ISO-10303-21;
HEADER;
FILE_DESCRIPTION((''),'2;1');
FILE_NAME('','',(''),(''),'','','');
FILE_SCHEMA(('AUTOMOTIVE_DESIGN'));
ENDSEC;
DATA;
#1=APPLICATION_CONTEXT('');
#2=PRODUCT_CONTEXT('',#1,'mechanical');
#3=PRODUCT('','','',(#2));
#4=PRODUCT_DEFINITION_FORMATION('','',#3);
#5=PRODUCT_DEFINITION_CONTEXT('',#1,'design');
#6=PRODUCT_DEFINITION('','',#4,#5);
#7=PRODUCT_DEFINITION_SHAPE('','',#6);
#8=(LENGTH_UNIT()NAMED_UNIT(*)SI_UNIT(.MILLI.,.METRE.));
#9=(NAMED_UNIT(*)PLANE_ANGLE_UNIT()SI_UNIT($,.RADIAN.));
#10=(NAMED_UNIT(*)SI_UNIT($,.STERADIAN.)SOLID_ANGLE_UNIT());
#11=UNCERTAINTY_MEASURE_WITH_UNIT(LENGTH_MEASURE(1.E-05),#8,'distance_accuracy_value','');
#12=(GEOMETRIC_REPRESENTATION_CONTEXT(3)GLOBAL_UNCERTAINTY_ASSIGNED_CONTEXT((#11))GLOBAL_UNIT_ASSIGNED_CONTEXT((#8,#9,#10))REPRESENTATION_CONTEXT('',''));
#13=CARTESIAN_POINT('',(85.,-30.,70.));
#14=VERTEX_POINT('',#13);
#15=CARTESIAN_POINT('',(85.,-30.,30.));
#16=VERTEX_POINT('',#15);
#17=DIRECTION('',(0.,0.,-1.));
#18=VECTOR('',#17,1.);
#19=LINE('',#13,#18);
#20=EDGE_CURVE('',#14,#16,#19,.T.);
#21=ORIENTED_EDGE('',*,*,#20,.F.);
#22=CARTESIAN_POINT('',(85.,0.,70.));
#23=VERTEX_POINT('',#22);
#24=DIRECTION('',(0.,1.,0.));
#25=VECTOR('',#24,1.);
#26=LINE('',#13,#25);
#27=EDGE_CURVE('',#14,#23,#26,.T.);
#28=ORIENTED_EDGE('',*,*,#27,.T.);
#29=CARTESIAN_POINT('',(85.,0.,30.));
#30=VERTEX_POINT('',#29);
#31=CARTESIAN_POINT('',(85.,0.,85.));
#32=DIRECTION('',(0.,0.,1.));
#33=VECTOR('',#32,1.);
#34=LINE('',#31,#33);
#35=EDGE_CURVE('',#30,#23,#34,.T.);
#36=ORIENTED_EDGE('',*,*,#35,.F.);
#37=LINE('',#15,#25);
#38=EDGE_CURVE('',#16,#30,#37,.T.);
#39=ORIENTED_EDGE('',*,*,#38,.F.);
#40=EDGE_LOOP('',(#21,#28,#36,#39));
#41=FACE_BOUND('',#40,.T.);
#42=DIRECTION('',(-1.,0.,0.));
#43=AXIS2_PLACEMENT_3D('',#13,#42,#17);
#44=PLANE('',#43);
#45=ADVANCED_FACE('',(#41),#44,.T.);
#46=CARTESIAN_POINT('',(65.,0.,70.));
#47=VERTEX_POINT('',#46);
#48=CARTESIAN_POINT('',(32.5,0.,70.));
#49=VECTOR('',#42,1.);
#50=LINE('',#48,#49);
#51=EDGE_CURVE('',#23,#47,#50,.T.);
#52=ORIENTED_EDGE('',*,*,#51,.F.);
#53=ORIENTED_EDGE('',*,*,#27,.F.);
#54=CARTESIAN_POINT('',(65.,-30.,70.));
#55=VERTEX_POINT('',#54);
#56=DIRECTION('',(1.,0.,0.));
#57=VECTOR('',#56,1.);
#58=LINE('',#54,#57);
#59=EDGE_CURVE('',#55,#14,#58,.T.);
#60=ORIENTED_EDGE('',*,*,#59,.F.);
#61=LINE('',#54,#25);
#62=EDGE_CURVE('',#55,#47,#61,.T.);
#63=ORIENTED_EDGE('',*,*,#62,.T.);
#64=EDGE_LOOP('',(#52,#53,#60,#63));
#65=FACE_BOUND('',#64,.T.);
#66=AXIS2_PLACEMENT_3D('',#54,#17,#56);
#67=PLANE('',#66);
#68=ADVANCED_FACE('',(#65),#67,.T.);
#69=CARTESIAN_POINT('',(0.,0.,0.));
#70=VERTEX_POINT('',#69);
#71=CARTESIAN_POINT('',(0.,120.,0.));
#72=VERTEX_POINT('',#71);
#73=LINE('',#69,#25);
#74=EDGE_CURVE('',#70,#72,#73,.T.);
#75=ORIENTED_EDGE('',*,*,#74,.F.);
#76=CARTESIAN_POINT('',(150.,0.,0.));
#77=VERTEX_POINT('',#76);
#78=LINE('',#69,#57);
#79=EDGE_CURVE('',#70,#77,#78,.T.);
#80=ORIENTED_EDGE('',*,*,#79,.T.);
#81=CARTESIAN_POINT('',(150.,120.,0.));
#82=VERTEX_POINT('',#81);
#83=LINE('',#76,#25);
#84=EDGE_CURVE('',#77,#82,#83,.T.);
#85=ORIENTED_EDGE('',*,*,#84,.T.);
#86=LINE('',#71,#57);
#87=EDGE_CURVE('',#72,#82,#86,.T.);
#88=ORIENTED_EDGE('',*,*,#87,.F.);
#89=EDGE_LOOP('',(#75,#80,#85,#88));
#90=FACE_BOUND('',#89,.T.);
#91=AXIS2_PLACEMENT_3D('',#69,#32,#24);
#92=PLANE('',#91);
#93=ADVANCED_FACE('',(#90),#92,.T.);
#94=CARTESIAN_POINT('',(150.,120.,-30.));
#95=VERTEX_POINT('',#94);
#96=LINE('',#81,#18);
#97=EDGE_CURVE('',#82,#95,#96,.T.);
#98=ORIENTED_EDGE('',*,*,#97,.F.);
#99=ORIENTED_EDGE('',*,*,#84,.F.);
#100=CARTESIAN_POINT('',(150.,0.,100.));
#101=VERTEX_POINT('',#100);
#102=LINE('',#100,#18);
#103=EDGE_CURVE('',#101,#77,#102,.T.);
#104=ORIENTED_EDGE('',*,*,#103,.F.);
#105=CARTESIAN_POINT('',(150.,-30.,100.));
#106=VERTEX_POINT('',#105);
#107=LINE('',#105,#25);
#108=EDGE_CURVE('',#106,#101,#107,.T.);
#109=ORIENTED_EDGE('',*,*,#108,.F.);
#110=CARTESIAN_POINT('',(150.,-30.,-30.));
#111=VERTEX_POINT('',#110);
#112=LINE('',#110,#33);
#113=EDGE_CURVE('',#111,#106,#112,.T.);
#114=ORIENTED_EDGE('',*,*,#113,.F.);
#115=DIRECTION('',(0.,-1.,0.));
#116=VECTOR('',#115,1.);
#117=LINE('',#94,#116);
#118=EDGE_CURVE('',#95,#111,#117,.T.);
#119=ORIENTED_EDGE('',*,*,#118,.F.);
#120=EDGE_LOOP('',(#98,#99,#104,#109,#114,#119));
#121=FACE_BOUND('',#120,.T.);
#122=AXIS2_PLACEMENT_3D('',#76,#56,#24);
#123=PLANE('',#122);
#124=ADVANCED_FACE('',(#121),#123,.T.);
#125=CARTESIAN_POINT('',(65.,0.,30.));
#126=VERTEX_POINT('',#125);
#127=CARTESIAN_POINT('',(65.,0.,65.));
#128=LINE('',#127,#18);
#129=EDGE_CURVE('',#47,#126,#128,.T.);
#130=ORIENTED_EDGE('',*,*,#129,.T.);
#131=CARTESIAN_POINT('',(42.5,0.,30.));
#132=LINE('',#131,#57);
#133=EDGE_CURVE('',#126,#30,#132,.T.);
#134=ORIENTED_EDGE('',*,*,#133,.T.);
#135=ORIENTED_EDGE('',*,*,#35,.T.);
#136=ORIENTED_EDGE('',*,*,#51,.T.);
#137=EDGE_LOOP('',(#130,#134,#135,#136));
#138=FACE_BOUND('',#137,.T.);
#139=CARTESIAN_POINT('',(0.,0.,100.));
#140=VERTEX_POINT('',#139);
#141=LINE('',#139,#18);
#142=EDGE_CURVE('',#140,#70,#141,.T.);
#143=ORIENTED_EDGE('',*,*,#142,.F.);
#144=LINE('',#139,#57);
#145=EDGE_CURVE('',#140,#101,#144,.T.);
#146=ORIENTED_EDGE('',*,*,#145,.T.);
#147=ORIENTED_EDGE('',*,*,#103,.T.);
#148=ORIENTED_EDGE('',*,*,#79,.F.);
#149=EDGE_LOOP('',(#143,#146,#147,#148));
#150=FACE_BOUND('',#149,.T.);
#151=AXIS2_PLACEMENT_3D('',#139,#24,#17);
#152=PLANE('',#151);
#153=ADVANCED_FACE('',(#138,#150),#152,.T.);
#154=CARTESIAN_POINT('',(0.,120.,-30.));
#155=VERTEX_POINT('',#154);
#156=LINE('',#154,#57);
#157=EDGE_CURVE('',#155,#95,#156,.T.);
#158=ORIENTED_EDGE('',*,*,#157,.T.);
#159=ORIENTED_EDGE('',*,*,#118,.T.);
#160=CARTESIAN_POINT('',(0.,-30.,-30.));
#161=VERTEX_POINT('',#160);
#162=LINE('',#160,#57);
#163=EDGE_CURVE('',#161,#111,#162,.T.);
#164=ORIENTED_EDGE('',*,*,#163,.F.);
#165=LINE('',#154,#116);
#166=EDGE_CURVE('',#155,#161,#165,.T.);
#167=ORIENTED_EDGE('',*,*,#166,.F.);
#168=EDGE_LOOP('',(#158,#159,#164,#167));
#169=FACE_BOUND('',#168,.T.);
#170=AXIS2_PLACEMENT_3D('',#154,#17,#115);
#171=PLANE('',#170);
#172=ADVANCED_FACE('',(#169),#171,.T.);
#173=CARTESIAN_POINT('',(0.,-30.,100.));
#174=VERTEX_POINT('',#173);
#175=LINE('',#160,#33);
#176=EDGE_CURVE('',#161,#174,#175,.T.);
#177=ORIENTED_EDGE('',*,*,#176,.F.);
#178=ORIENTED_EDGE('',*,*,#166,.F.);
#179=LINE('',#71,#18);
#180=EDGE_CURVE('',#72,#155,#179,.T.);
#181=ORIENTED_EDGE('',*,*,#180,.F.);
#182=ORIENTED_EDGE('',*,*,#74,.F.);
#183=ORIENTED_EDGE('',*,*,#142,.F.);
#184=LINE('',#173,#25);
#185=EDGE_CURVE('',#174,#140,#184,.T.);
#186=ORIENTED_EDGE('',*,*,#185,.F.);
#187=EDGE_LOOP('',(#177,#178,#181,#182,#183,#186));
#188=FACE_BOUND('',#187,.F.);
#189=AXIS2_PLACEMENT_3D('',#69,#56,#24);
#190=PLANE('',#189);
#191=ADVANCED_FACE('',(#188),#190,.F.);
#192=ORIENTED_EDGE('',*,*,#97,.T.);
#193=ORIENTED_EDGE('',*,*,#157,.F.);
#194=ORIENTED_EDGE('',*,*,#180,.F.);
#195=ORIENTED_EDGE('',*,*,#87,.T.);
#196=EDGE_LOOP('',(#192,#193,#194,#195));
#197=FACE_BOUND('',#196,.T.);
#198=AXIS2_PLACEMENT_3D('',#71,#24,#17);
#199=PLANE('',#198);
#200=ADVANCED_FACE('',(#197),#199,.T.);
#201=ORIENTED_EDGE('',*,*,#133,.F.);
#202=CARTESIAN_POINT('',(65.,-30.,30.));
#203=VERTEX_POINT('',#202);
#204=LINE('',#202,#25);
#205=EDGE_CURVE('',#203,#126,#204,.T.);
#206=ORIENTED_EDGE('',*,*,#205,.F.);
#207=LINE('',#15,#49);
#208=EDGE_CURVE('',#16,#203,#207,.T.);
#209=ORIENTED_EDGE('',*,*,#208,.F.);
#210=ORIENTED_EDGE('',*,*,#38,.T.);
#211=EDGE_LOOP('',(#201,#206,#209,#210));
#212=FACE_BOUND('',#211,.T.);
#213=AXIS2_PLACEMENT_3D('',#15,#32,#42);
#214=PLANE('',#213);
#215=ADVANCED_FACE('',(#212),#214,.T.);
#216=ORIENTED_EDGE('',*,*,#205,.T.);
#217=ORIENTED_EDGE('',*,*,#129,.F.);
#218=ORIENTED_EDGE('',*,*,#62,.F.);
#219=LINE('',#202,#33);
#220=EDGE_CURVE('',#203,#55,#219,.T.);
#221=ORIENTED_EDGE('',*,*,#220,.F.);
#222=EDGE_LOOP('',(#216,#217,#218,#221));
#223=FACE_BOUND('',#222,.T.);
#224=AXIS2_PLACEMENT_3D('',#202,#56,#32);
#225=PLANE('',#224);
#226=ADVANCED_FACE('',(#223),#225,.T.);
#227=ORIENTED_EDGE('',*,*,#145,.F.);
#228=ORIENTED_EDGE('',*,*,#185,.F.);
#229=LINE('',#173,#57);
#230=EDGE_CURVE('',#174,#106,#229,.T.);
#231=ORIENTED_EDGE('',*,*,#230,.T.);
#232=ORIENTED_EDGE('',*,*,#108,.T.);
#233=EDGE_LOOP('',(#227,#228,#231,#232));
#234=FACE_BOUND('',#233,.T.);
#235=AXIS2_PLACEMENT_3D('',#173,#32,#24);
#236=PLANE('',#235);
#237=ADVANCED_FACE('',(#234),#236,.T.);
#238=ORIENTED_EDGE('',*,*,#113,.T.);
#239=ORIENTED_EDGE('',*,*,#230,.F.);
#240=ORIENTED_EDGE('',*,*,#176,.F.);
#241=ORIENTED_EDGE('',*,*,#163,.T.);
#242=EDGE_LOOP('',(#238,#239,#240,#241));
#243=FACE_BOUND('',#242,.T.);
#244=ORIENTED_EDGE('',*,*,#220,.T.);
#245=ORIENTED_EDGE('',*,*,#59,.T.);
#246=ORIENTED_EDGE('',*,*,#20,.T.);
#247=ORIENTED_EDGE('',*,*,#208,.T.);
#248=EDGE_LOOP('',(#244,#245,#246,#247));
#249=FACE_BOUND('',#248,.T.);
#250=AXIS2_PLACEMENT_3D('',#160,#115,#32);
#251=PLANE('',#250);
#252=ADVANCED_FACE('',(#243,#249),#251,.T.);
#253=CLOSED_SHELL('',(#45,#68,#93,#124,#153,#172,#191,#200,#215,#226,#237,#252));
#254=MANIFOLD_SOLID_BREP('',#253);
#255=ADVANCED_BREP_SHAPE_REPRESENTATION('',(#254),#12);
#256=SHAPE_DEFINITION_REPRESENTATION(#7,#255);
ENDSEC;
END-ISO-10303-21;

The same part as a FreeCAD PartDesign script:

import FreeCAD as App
import Part
import Sketcher

V = App.Vector
Q = App.Units.Quantity

doc = App.newDocument("Part")
body = doc.addObject("PartDesign::Body", "Body")

# Sketch on YZ plane
sketch1 = doc.addObject("Sketcher::SketchObject", "Sketch")
body.addObject(sketch1)
sketch1.AttachmentSupport = (doc.YZ_Plane, [""])
sketch1.MapMode = "FlatFace"
sketch1.addGeometry(Part.LineSegment(V(120, 0, 0), V(0, 0, 0)), False)
sketch1.addGeometry(Part.LineSegment(V(0, 0, 0), V(0, 100, 0)), False)
sketch1.addGeometry(Part.LineSegment(V(0, 100, 0), V(-30, 100, 0)), False)
sketch1.addGeometry(Part.LineSegment(V(-30, 100, 0), V(-30, -30, 0)), False)
sketch1.addGeometry(Part.LineSegment(V(-30, -30, 0), V(120, -30, 0)), False)
sketch1.addGeometry(Part.LineSegment(V(120, -30, 0), V(120, 0, 0)), False)
sketch1.addConstraint(Sketcher.Constraint("Coincident", 0, 2, 1, 1))
sketch1.addConstraint(Sketcher.Constraint("Coincident", 1, 2, 2, 1))
sketch1.addConstraint(Sketcher.Constraint("Coincident", 2, 2, 3, 1))
sketch1.addConstraint(Sketcher.Constraint("Coincident", 3, 2, 4, 1))
sketch1.addConstraint(Sketcher.Constraint("Coincident", 4, 2, 5, 1))
sketch1.addConstraint(Sketcher.Constraint("Coincident", 5, 2, 0, 1))
sketch1.addConstraint(Sketcher.Constraint("Horizontal", 0))
sketch1.addConstraint(Sketcher.Constraint("Vertical", 1))
sketch1.addConstraint(Sketcher.Constraint("Horizontal", 2))
sketch1.addConstraint(Sketcher.Constraint("Vertical", 3))
sketch1.addConstraint(Sketcher.Constraint("Horizontal", 4))
sketch1.addConstraint(Sketcher.Constraint("Vertical", 5))
sketch1.addConstraint(Sketcher.Constraint("Coincident", 0, 2, -1, 1))
sketch1.addConstraint(Sketcher.Constraint("Equal", 2, 5))
sketch1.addConstraint(Sketcher.Constraint("DistanceX", 2, 2, 2, 1, Q("30 mm")))
sketch1.addConstraint(Sketcher.Constraint("DistanceX", 4, 1, 4, 2, Q("150 mm")))
sketch1.addConstraint(Sketcher.Constraint("DistanceY", 3, 2, 3, 1, Q("130 mm")))
pad1 = doc.addObject("PartDesign::Pad", "Pad")
body.addObject(pad1)
pad1.Profile = sketch1
pad1.Length = 150

# Sketch on XZ plane
sketch2 = doc.addObject("Sketcher::SketchObject", "Sketch001")
body.addObject(sketch2)
sketch2.AttachmentSupport = (doc.XZ_Plane, [""])
sketch2.MapMode = "FlatFace"
sketch2.AttachmentOffset = App.Placement(V(0, 0, 30), App.Rotation())
sketch2.addGeometry(Part.LineSegment(V(85, 70, 0), V(65, 70, 0)), False)
sketch2.addGeometry(Part.LineSegment(V(65, 70, 0), V(65, 30, 0)), False)
sketch2.addGeometry(Part.LineSegment(V(65, 30, 0), V(85, 30, 0)), False)
sketch2.addGeometry(Part.LineSegment(V(85, 30, 0), V(85, 70, 0)), False)
sketch2.addConstraint(Sketcher.Constraint("Coincident", 0, 2, 1, 1))
sketch2.addConstraint(Sketcher.Constraint("Coincident", 1, 2, 2, 1))
sketch2.addConstraint(Sketcher.Constraint("Coincident", 2, 2, 3, 1))
sketch2.addConstraint(Sketcher.Constraint("Coincident", 3, 2, 0, 1))
sketch2.addConstraint(Sketcher.Constraint("Horizontal", 0))
sketch2.addConstraint(Sketcher.Constraint("Vertical", 1))
sketch2.addConstraint(Sketcher.Constraint("Horizontal", 2))
sketch2.addConstraint(Sketcher.Constraint("Vertical", 3))
sketch2.addConstraint(Sketcher.Constraint("DistanceX", 0, 2, 0, 1, Q("20 mm")))
sketch2.addConstraint(Sketcher.Constraint("DistanceY", 1, 2, 1, 1, Q("40 mm")))
sketch2.addConstraint(Sketcher.Constraint("DistanceX", -1, 1, 0, 2, Q("65 mm")))
sketch2.addConstraint(Sketcher.Constraint("DistanceY", -1, 1, 1, 2, Q("30 mm")))
pocket1 = doc.addObject("PartDesign::Pocket", "Pocket")
body.addObject(pocket1)
pocket1.Profile = sketch2
pocket1.Type = "ThroughAll"

doc.recompute()
